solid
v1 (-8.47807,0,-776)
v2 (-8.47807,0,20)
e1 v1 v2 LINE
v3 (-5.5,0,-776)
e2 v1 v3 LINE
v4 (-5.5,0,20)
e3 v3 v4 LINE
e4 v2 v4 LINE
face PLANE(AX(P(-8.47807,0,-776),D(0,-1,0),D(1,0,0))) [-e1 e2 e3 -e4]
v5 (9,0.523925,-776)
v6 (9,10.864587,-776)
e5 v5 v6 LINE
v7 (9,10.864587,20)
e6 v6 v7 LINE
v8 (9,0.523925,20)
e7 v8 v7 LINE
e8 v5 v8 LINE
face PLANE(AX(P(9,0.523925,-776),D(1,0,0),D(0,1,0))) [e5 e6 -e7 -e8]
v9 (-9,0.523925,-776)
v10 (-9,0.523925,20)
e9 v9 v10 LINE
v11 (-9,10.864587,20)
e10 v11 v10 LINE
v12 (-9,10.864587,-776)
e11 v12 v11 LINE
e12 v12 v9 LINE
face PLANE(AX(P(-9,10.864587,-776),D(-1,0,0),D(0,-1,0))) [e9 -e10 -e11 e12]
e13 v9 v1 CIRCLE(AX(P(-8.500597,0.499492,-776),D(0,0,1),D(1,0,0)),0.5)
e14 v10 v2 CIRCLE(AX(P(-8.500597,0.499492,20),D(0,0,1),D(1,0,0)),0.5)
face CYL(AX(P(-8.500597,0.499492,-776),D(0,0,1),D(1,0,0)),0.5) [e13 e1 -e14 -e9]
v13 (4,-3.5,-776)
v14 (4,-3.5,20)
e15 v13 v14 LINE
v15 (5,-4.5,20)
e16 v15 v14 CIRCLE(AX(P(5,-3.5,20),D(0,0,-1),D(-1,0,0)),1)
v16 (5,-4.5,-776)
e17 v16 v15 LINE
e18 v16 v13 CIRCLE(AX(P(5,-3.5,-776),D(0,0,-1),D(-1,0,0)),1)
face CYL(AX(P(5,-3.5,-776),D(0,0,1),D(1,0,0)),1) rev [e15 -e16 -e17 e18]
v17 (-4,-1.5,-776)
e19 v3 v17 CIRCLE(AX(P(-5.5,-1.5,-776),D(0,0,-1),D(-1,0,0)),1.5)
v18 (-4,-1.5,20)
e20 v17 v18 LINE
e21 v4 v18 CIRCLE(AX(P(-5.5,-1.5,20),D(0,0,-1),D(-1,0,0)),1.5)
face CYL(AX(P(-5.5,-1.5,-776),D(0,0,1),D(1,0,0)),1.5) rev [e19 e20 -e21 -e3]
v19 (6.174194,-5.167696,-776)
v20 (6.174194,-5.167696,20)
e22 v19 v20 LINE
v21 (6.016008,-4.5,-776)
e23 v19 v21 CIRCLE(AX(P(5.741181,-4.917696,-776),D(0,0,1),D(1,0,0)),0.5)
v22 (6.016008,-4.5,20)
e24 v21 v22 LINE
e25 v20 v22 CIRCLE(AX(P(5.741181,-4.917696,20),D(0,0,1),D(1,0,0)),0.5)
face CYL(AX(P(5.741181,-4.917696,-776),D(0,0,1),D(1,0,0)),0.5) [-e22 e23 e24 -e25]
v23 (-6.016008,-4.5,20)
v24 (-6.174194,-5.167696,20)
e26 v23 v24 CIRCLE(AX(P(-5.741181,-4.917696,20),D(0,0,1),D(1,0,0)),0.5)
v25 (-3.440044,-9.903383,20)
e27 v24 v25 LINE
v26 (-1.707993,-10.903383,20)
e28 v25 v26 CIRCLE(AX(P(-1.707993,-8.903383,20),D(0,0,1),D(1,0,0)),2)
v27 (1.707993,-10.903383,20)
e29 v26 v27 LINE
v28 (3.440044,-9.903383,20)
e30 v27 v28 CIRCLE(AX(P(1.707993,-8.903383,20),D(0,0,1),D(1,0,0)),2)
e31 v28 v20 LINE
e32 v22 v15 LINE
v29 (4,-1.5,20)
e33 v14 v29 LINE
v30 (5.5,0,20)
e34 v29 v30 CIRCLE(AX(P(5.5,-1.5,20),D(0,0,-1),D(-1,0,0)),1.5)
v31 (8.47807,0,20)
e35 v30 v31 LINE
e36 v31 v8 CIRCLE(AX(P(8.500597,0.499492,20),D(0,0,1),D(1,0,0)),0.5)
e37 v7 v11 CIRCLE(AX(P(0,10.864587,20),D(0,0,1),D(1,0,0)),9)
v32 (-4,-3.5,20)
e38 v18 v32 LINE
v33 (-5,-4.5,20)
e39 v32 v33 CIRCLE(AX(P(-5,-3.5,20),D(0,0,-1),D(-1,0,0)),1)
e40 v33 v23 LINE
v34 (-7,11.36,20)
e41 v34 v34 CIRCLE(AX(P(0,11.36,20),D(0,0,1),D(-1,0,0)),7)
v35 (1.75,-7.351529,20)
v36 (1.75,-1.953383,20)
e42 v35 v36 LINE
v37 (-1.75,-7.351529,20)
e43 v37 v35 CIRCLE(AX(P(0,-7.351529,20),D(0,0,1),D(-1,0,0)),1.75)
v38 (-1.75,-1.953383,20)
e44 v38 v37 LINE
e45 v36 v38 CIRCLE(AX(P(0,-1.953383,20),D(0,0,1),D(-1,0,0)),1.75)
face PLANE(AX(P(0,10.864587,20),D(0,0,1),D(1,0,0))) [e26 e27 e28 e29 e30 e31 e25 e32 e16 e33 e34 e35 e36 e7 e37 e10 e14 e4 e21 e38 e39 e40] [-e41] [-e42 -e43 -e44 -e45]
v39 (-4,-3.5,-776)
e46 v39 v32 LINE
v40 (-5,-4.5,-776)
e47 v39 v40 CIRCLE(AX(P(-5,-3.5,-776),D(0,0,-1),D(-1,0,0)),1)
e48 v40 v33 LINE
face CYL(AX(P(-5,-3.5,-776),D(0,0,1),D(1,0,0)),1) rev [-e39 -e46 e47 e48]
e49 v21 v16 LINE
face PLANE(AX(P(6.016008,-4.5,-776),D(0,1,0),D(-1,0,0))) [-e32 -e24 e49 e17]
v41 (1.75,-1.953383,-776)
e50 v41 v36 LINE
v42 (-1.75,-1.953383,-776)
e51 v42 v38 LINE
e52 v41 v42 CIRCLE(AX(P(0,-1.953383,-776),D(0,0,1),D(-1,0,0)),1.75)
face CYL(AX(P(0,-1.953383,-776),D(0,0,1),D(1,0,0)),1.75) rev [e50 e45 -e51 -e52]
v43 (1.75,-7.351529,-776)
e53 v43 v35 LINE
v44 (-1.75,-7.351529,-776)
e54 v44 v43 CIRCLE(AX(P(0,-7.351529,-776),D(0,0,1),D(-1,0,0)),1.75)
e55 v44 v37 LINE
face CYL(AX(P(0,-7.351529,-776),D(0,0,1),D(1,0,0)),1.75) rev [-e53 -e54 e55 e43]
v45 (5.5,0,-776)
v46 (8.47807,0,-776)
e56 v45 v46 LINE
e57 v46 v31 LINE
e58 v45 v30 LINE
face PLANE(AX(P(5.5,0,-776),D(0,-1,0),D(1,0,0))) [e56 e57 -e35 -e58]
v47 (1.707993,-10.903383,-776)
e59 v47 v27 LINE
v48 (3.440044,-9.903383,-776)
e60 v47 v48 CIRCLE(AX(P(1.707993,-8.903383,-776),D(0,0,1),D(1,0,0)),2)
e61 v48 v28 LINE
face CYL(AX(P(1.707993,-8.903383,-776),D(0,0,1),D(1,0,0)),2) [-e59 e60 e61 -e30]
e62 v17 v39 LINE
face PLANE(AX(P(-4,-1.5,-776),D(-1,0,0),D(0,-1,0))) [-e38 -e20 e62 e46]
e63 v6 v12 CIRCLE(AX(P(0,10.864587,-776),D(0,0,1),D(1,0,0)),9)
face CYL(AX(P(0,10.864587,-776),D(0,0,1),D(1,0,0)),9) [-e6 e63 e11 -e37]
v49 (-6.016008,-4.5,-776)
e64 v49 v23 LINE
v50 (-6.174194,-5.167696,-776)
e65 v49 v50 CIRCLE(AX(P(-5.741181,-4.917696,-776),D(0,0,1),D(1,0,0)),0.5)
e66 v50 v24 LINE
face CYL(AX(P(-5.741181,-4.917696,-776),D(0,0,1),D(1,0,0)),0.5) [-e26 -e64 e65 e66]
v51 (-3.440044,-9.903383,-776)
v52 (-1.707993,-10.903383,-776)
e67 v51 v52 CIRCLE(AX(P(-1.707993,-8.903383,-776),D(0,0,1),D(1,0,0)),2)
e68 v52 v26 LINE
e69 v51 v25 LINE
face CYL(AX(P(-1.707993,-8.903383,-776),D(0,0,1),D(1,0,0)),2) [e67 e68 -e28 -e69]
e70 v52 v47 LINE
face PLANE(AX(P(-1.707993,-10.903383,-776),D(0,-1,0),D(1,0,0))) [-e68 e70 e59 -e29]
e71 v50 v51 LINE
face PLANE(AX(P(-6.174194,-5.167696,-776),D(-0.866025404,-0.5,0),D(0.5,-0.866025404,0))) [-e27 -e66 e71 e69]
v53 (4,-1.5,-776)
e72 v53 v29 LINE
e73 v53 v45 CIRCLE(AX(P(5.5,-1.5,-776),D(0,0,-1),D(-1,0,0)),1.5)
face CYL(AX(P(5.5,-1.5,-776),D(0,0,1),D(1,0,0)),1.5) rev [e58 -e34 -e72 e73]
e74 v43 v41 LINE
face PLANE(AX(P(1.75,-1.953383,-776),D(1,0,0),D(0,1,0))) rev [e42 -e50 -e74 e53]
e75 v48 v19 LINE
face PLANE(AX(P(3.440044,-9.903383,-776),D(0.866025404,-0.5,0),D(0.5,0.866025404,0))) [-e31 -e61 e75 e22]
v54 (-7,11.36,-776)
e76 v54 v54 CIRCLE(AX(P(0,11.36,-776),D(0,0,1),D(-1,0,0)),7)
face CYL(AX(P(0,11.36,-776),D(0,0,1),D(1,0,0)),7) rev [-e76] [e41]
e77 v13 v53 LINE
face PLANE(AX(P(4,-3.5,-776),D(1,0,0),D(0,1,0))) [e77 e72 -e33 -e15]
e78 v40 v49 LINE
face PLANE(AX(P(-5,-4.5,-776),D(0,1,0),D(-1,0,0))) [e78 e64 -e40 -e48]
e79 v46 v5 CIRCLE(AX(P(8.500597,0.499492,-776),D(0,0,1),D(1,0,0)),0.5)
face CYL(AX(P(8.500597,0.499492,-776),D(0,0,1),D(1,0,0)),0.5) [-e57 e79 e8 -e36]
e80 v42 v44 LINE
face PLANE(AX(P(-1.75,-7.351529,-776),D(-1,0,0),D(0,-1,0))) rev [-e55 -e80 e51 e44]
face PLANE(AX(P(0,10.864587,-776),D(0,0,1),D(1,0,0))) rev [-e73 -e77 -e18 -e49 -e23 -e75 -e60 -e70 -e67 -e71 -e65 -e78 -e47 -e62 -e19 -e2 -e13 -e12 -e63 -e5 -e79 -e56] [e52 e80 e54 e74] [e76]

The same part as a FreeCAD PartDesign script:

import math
import FreeCAD as App
import Part
import Sketcher
from FreeCAD import Vector
Q = App.Units.Quantity

doc = App.newDocument("Part")
body = doc.addObject("PartDesign::Body", "Body")

sketch1 = body.newObject("Sketcher::SketchObject", "Sketch")
sketch1.AttachmentSupport = (doc.getObject("XY_Plane"), [""])
sketch1.MapMode = "FlatFace"
sketch1.AttachmentOffset = App.Placement(Vector(0, 0, 20), App.Rotation())
sketch1.addGeometry([
    Part.LineSegment(Vector(-9, 10.9, 0), Vector(-9, 0.5, 0)),
    Part.ArcOfCircle(Part.Circle(Vector(-8.5, 0.5, 0), Vector(0, 0, 1), 0.5), math.radians(177), math.radians(273)),
    Part.LineSegment(Vector(-8.5, 0, 0), Vector(-5.5, 0, 0)),
    Part.ArcOfCircle(Part.Circle(Vector(-5.5, -1.5, 0), Vector(0, 0, 1), 1.5), math.radians(0), math.radians(90)),
    Part.LineSegment(Vector(-4, -1.5, 0), Vector(-4, -3.5, 0)),
    Part.ArcOfCircle(Part.Circle(Vector(-5, -3.5, 0), Vector(0, 0, 1), 1), math.radians(-90), math.radians(0)),
    Part.LineSegment(Vector(-5, -4.5, 0), Vector(-6, -4.5, 0)),
    Part.ArcOfCircle(Part.Circle(Vector(-5.7, -4.9, 0), Vector(0, 0, 1), 0.5), math.radians(123), math.radians(210)),
    Part.LineSegment(Vector(-6.2, -5.2, 0), Vector(-3.4, -9.9, 0)),
    Part.ArcOfCircle(Part.Circle(Vector(-1.7, -8.9, 0), Vector(0, 0, 1), 2), math.radians(-150), math.radians(-90)),
    Part.LineSegment(Vector(-1.7, -10.9, 0), Vector(1.7, -10.9, 0)),
    Part.ArcOfCircle(Part.Circle(Vector(1.7, -8.9, 0), Vector(0, 0, 1), 2), math.radians(-90), math.radians(-30)),
    Part.LineSegment(Vector(3.4, -9.9, 0), Vector(6.2, -5.2, 0)),
    Part.ArcOfCircle(Part.Circle(Vector(5.7, -4.9, 0), Vector(0, 0, 1), 0.5), math.radians(-30), math.radians(57)),
    Part.LineSegment(Vector(6, -4.5, 0), Vector(5, -4.5, 0)),
    Part.ArcOfCircle(Part.Circle(Vector(5, -3.5, 0), Vector(0, 0, 1), 1), math.radians(-180), math.radians(-90)),
    Part.LineSegment(Vector(4, -3.5, 0), Vector(4, -1.5, 0)),
    Part.ArcOfCircle(Part.Circle(Vector(5.5, -1.5, 0), Vector(0, 0, 1), 1.5), math.radians(90), math.radians(180)),
    Part.LineSegment(Vector(5.5, 0, 0), Vector(8.5, 0, 0)),
    Part.ArcOfCircle(Part.Circle(Vector(8.5, 0.5, 0), Vector(0, 0, 1), 0.5), math.radians(-93), math.radians(3)),
    Part.LineSegment(Vector(9, 0.5, 0), Vector(9, 10.9, 0)),
    Part.ArcOfCircle(Part.Circle(Vector(0, 10.9, 0), Vector(0, 0, 1), 9), math.radians(0), math.radians(180)),
    Part.ArcOfCircle(Part.Circle(Vector(0, -2, 0), Vector(0, 0, 1), 1.8), math.radians(0), math.radians(180)),
    Part.LineSegment(Vector(1.8, -2, 0), Vector(1.8, -7.4, 0)),
    Part.ArcOfCircle(Part.Circle(Vector(0, -7.4, 0), Vector(0, 0, 1), 1.8), math.radians(180), math.radians(360)),
    Part.LineSegment(Vector(-1.8, -7.4, 0), Vector(-1.8, -2, 0)),
    Part.Circle(Vector(0, 11.4, 0), Vector(0, 0, 1), 7),
], False)
sketch1.addConstraint([
    Sketcher.Constraint("Coincident", 0, 2, 1, 1),
    Sketcher.Constraint("Coincident", 1, 2, 2, 1),
    Sketcher.Constraint("Tangent", 2, 2, 3, 2),
    Sketcher.Constraint("Tangent", 3, 1, 4, 1),
    Sketcher.Constraint("Tangent", 4, 2, 5, 2),
    Sketcher.Constraint("Tangent", 5, 1, 6, 1),
    Sketcher.Constraint("Coincident", 6, 2, 7, 1),
    Sketcher.Constraint("Tangent", 7, 2, 8, 1),
    Sketcher.Constraint("Tangent", 8, 2, 9, 1),
    Sketcher.Constraint("Tangent", 9, 2, 10, 1),
    Sketcher.Constraint("Tangent", 10, 2, 11, 1),
    Sketcher.Constraint("Tangent", 11, 2, 12, 1),
    Sketcher.Constraint("Tangent", 12, 2, 13, 1),
    Sketcher.Constraint("Coincident", 13, 2, 14, 1),
    Sketcher.Constraint("Tangent", 14, 2, 15, 2),
    Sketcher.Constraint("Tangent", 15, 1, 16, 1),
    Sketcher.Constraint("Tangent", 16, 2, 17, 2),
    Sketcher.Constraint("Tangent", 17, 1, 18, 1),
    Sketcher.Constraint("Coincident", 18, 2, 19, 1),
    Sketcher.Constraint("Coincident", 19, 2, 20, 1),
    Sketcher.Constraint("Tangent", 20, 2, 21, 1),
    Sketcher.Constraint("Tangent", 21, 2, 0, 1),
    Sketcher.Constraint("Tangent", 22, 1, 23, 1),
    Sketcher.Constraint("Tangent", 23, 2, 24, 2),
    Sketcher.Constraint("Tangent", 24, 1, 25, 1),
    Sketcher.Constraint("Tangent", 25, 2, 22, 2),
    Sketcher.Constraint("Vertical", 0),
    Sketcher.Constraint("Horizontal", 2),
    Sketcher.Constraint("Vertical", 4),
    Sketcher.Constraint("Horizontal", 6),
    Sketcher.Constraint("Horizontal", 10),
    Sketcher.Constraint("Horizontal", 14),
    Sketcher.Constraint("Vertical", 16),
    Sketcher.Constraint("Horizontal", 18),
    Sketcher.Constraint("Vertical", 20),
    Sketcher.Constraint("Vertical", 23),
    Sketcher.Constraint("Vertical", 25),
    Sketcher.Constraint("Equal", 1, 7),
    Sketcher.Constraint("Equal", 9, 11),
    Sketcher.Constraint("Equal", 7, 13),
    Sketcher.Constraint("Equal", 5, 15),
    Sketcher.Constraint("Equal", 3, 17),
    Sketcher.Constraint("Equal", 13, 19),
    Sketcher.Constraint("Symmetric", 2, 2, 17, 1, -1, 1),
    Sketcher.Constraint("Symmetric", 7, 3, 13, 3, -2),
    Sketcher.Constraint("Symmetric", 1, 3, 19, 3, -2),
    Sketcher.Constraint("PointOnObject", 21, 3, -2),
    Sketcher.Constraint("PointOnObject", 22, 3, -2),
    Sketcher.Constraint("PointOnObject", 26, 3, -2),
    Sketcher.Constraint("PointOnObject", 1, 2, -1),
    Sketcher.Constraint("Horizontal", 5, 3, 15, 3),
    Sketcher.Constraint("Horizontal", 8, 2, 11, 2),
    Sketcher.Constraint("Diameter", 26, 14.0),
    Sketcher.Constraint("Radius", 5, 1.0),
    Sketcher.Constraint("Radius", 9, 2.0),
    Sketcher.Constraint("Radius", 21, 9.0),
    Sketcher.Constraint("Radius", 1, 0.5),
    Sketcher.Constraint("Radius", 3, 1.5),
    Sketcher.Constraint("DistanceY", 4, 2, 4, 1, 2.0),
    Sketcher.Constraint("Angle", 8, Q("-60 deg")),
    Sketcher.Constraint("Radius", 22, 1.75),
    Sketcher.Constraint("DistanceX", 5, 3, -1, 1, 5.0),
    Sketcher.Constraint("DistanceY", -1, 1, 26, 3, 11.36),
    Sketcher.Constraint("Distance", 8, 5.4683),
    Sketcher.Constraint("DistanceX", 2, 1, 2, 2, 2.97807),
    Sketcher.Constraint("DistanceX", 6, 2, 6, 1, 1.016008),
    Sketcher.Constraint("DistanceX", 10, 1, 10, 2, 3.415986),
    Sketcher.Constraint("DistanceY", 0, 2, 0, 1, 10.340662),
    Sketcher.Constraint("DistanceY", 23, 2, 23, 1, 5.398146),
    Sketcher.Constraint("DistanceY", 24, 3, -1, 1, 7.351529),
    Sketcher.Constraint("DistanceX", 1, 3, 11, 3, 10.20859),
])
pad1 = body.newObject("PartDesign::Pad", "Pad")
pad1.Profile = sketch1
pad1.Length = 796
pad1.Reversed = True

doc.recompute()
